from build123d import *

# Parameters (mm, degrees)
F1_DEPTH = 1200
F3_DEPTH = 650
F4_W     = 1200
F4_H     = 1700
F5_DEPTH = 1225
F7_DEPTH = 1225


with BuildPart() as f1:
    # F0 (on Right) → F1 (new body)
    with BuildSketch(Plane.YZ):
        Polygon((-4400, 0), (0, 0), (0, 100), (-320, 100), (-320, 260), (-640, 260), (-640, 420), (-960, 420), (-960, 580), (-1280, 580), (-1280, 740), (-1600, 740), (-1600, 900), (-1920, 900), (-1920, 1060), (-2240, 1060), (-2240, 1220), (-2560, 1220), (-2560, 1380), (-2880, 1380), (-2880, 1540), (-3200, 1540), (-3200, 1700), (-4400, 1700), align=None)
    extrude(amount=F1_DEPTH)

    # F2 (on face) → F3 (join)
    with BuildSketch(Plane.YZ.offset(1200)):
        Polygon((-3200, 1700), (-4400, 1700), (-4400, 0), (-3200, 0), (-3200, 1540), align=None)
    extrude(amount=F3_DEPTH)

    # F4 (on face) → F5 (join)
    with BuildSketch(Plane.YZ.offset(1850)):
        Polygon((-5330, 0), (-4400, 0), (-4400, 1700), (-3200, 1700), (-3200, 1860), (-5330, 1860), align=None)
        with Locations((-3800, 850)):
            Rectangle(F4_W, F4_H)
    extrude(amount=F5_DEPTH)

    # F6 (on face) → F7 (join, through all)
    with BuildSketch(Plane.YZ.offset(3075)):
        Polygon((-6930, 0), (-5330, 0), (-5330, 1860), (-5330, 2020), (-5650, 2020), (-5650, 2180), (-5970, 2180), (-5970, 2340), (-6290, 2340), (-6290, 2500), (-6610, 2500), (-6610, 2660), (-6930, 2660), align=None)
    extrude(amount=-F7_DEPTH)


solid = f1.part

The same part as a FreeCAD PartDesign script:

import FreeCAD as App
import Part
import Sketcher

V = App.Vector


def add_polygon(sketch, points):
    """Adds a closed chain of lines whose ends are joined by coincident constraints."""
    first, n = sketch.GeometryCount, len(points)
    for a, b in zip(points, points[1:] + points[:1]):
        sketch.addGeometry(Part.LineSegment(App.Vector(*a, 0), App.Vector(*b, 0)), False)
    for i in range(n):
        sketch.addConstraint(Sketcher.Constraint("Coincident", first + i, 2, first + (i + 1) % n, 1))

doc = App.newDocument("Part")
body = doc.addObject("PartDesign::Body", "Body")

# Sketch on YZ plane
sketch1 = body.newObject("Sketcher::SketchObject", "Sketch")
sketch1.AttachmentSupport = (doc.getObject("YZ_Plane"), [""])
sketch1.MapMode = "FlatFace"
add_polygon(sketch1, [(-4400, 0), (0, 0), (0, 100), (-320, 100), (-320, 260), (-640, 260), (-640, 420), (-960, 420), (-960, 580), (-1280, 580), (-1280, 740), (-1600, 740), (-1600, 900), (-1920, 900), (-1920, 1060), (-2240, 1060), (-2240, 1220), (-2560, 1220), (-2560, 1380), (-2880, 1380), (-2880, 1540), (-3200, 1540), (-3200, 1700), (-4400, 1700)])  # lines 0-23
sketch1.addConstraint([
    Sketcher.Constraint("Horizontal", 0),
    Sketcher.Constraint("Vertical", 1),
    Sketcher.Constraint("Horizontal", 2),
    Sketcher.Constraint("Vertical", 3),
    Sketcher.Constraint("Horizontal", 4),
    Sketcher.Constraint("Vertical", 5),
    Sketcher.Constraint("Horizontal", 6),
    Sketcher.Constraint("Vertical", 7),
    Sketcher.Constraint("Horizontal", 8),
    Sketcher.Constraint("Vertical", 9),
    Sketcher.Constraint("Horizontal", 10),
    Sketcher.Constraint("Vertical", 11),
    Sketcher.Constraint("Horizontal", 12),
    Sketcher.Constraint("Vertical", 13),
    Sketcher.Constraint("Horizontal", 14),
    Sketcher.Constraint("Vertical", 15),
    Sketcher.Constraint("Horizontal", 16),
    Sketcher.Constraint("Vertical", 17),
    Sketcher.Constraint("Horizontal", 18),
    Sketcher.Constraint("Vertical", 19),
    Sketcher.Constraint("Horizontal", 20),
    Sketcher.Constraint("Vertical", 21),
    Sketcher.Constraint("Horizontal", 22),
    Sketcher.Constraint("Vertical", 23),
    Sketcher.Constraint("Coincident", 0, 2, -1, 1),
    Sketcher.Constraint("Equal", 2, 4),
    Sketcher.Constraint("Equal", 4, 6),
    Sketcher.Constraint("Equal", 6, 8),
    Sketcher.Constraint("Equal", 8, 10),
    Sketcher.Constraint("Equal", 10, 12),
    Sketcher.Constraint("Equal", 12, 14),
    Sketcher.Constraint("Equal", 14, 16),
    Sketcher.Constraint("Equal", 16, 18),
    Sketcher.Constraint("Equal", 18, 20),
    Sketcher.Constraint("Equal", 3, 5),
    Sketcher.Constraint("Equal", 5, 7),
    Sketcher.Constraint("Equal", 7, 9),
    Sketcher.Constraint("Equal", 9, 11),
    Sketcher.Constraint("Equal", 11, 13),
    Sketcher.Constraint("Equal", 13, 15),
    Sketcher.Constraint("Equal", 15, 17),
    Sketcher.Constraint("Equal", 17, 19),
    Sketcher.Constraint("Equal", 19, 21),
    Sketcher.Constraint("DistanceX", 0, 1, 0, 2, 4400.0),
    Sketcher.Constraint("DistanceX", 2, 2, 2, 1, 320.0),
    Sketcher.Constraint("DistanceY", 1, 1, 1, 2, 100.0),
    Sketcher.Constraint("DistanceY", 3, 1, 3, 2, 160.0),
])
pad1 = body.newObject("PartDesign::Pad", "Pad")
pad1.Profile = sketch1
pad1.Length = 1200

# Sketch on YZ plane
sketch2 = body.newObject("Sketcher::SketchObject", "Sketch001")
sketch2.AttachmentSupport = (doc.getObject("YZ_Plane"), [""])
sketch2.MapMode = "FlatFace"
sketch2.AttachmentOffset = App.Placement(V(0, 0, 1200), App.Rotation())
add_polygon(sketch2, [(-3200, 1700), (-4400, 1700), (-4400, 0), (-3200, 0)])  # lines 0-3
sketch2.addConstraint([
    Sketcher.Constraint("Horizontal", 0),
    Sketcher.Constraint("Vertical", 1),
    Sketcher.Constraint("Horizontal", 2),
    Sketcher.Constraint("Vertical", 3),
    Sketcher.Constraint("PointOnObject", 1, 2, -1),
    Sketcher.Constraint("DistanceX", 0, 2, 0, 1, 1200.0),
    Sketcher.Constraint("DistanceY", 1, 2, 1, 1, 1700.0),
    Sketcher.Constraint("DistanceX", 0, 2, -1, 1, 4400.0),
])
pad2 = body.newObject("PartDesign::Pad", "Pad001")
pad2.Profile = sketch2
pad2.Length = 650

# Sketch on YZ plane
sketch3 = body.newObject("Sketcher::SketchObject", "Sketch002")
sketch3.AttachmentSupport = (doc.getObject("YZ_Plane"), [""])
sketch3.MapMode = "FlatFace"
sketch3.AttachmentOffset = App.Placement(V(0, 0, 1850), App.Rotation())
add_polygon(sketch3, [(-5330, 0), (-3200, 0), (-3200, 1860), (-5330, 1860)])  # lines 0-3
sketch3.addConstraint([
    Sketcher.Constraint("Horizontal", 0),
    Sketcher.Constraint("Vertical", 1),
    Sketcher.Constraint("Horizontal", 2),
    Sketcher.Constraint("Vertical", 3),
    Sketcher.Constraint("PointOnObject", 0, 2, -1),
    Sketcher.Constraint("DistanceX", 0, 1, 0, 2, 2130.0),
    Sketcher.Constraint("DistanceY", 1, 1, 1, 2, 1860.0),
    Sketcher.Constraint("DistanceX", 0, 2, -1, 1, 3200.0),
])
pad3 = body.newObject("PartDesign::Pad", "Pad002")
pad3.Profile = sketch3
pad3.Length = 1225

# Sketch on YZ plane
sketch4 = body.newObject("Sketcher::SketchObject", "Sketch003")
sketch4.AttachmentSupport = (doc.getObject("YZ_Plane"), [""])
sketch4.MapMode = "FlatFace"
sketch4.AttachmentOffset = App.Placement(V(0, 0, 3075), App.Rotation())
add_polygon(sketch4, [(-6930, 0), (-5330, 0), (-5330, 2020), (-5650, 2020), (-5650, 2180), (-5970, 2180), (-5970, 2340), (-6290, 2340), (-6290, 2500), (-6610, 2500), (-6610, 2660), (-6930, 2660)])  # lines 0-11
sketch4.addConstraint([
    Sketcher.Constraint("Horizontal", 0),
    Sketcher.Constraint("Vertical", 1),
    Sketcher.Constraint("Horizontal", 2),
    Sketcher.Constraint("Vertical", 3),
    Sketcher.Constraint("Horizontal", 4),
    Sketcher.Constraint("Vertical", 5),
    Sketcher.Constraint("Horizontal", 6),
    Sketcher.Constraint("Vertical", 7),
    Sketcher.Constraint("Horizontal", 8),
    Sketcher.Constraint("Vertical", 9),
    Sketcher.Constraint("Horizontal", 10),
    Sketcher.Constraint("Vertical", 11),
    Sketcher.Constraint("PointOnObject", 0, 2, -1),
    Sketcher.Constraint("Equal", 2, 4),
    Sketcher.Constraint("Equal", 4, 6),
    Sketcher.Constraint("Equal", 6, 8),
    Sketcher.Constraint("Equal", 8, 10),
    Sketcher.Constraint("Equal", 3, 5),
    Sketcher.Constraint("Equal", 5, 7),
    Sketcher.Constraint("Equal", 7, 9),
    Sketcher.Constraint("DistanceX", 0, 1, 0, 2, 1600.0),
    Sketcher.Constraint("DistanceY", 1, 1, 1, 2, 2020.0),
    Sketcher.Constraint("DistanceY", 3, 1, 3, 2, 160.0),
    Sketcher.Constraint("DistanceX", 0, 2, -1, 1, 5330.0),
])
pad4 = body.newObject("PartDesign::Pad", "Pad003")
pad4.Profile = sketch4
pad4.Length = 1225
pad4.Reversed = True

doc.recompute()
